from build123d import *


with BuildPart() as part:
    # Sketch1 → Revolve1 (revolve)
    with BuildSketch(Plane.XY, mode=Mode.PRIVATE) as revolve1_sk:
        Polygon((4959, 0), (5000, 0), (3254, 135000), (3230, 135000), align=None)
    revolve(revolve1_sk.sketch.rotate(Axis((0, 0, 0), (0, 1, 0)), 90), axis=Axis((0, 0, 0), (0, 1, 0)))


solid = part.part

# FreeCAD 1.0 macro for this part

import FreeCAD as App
import Part
import Sketcher

V = App.Vector

doc = App.newDocument("Part")
body = doc.addObject("PartDesign::Body", "Body")

# Sketch on XY plane
sketch1 = body.newObject("Sketcher::SketchObject", "Sketch")
sketch1.AttachmentSupport = (doc.getObject("XY_Plane"), [""])
sketch1.MapMode = "FlatFace"
sketch1.addGeometry([
    Part.LineSegment(V(4959, 0, 0), V(5000, 0, 0)),
    Part.LineSegment(V(5000, 0, 0), V(3254, 135000, 0)),
    Part.LineSegment(V(3254, 135000, 0), V(3230, 135000, 0)),
    Part.LineSegment(V(3230, 135000, 0), V(4959, 0, 0)),
], False)
sketch1.addConstraint([
    Sketcher.Constraint("Coincident", 0, 2, 1, 1),
    Sketcher.Constraint("Coincident", 1, 2, 2, 1),
    Sketcher.Constraint("Coincident", 2, 2, 3, 1),
    Sketcher.Constraint("Coincident", 3, 2, 0, 1),
    Sketcher.Constraint("Horizontal", 0),
    Sketcher.Constraint("Horizontal", 2),
    Sketcher.Constraint("PointOnObject", 0, 2, -1),
    Sketcher.Constraint("DistanceX", 0, 1, 0, 2, 41.0),
    Sketcher.Constraint("DistanceX", 2, 2, 2, 1, 24.0),
    Sketcher.Constraint("DistanceX", -1, 1, 0, 2, 5000.0),
    Sketcher.Constraint("DistanceX", -1, 1, 1, 2, 3254.0),
    Sketcher.Constraint("DistanceY", -1, 1, 1, 2, 135000.0),
])
revolution = body.newObject("PartDesign::Revolution", "Revolution")
revolution.Profile = sketch1
revolution.ReferenceAxis = (sketch1, ["V_Axis"])
revolution.Angle = 360

doc.recompute()
